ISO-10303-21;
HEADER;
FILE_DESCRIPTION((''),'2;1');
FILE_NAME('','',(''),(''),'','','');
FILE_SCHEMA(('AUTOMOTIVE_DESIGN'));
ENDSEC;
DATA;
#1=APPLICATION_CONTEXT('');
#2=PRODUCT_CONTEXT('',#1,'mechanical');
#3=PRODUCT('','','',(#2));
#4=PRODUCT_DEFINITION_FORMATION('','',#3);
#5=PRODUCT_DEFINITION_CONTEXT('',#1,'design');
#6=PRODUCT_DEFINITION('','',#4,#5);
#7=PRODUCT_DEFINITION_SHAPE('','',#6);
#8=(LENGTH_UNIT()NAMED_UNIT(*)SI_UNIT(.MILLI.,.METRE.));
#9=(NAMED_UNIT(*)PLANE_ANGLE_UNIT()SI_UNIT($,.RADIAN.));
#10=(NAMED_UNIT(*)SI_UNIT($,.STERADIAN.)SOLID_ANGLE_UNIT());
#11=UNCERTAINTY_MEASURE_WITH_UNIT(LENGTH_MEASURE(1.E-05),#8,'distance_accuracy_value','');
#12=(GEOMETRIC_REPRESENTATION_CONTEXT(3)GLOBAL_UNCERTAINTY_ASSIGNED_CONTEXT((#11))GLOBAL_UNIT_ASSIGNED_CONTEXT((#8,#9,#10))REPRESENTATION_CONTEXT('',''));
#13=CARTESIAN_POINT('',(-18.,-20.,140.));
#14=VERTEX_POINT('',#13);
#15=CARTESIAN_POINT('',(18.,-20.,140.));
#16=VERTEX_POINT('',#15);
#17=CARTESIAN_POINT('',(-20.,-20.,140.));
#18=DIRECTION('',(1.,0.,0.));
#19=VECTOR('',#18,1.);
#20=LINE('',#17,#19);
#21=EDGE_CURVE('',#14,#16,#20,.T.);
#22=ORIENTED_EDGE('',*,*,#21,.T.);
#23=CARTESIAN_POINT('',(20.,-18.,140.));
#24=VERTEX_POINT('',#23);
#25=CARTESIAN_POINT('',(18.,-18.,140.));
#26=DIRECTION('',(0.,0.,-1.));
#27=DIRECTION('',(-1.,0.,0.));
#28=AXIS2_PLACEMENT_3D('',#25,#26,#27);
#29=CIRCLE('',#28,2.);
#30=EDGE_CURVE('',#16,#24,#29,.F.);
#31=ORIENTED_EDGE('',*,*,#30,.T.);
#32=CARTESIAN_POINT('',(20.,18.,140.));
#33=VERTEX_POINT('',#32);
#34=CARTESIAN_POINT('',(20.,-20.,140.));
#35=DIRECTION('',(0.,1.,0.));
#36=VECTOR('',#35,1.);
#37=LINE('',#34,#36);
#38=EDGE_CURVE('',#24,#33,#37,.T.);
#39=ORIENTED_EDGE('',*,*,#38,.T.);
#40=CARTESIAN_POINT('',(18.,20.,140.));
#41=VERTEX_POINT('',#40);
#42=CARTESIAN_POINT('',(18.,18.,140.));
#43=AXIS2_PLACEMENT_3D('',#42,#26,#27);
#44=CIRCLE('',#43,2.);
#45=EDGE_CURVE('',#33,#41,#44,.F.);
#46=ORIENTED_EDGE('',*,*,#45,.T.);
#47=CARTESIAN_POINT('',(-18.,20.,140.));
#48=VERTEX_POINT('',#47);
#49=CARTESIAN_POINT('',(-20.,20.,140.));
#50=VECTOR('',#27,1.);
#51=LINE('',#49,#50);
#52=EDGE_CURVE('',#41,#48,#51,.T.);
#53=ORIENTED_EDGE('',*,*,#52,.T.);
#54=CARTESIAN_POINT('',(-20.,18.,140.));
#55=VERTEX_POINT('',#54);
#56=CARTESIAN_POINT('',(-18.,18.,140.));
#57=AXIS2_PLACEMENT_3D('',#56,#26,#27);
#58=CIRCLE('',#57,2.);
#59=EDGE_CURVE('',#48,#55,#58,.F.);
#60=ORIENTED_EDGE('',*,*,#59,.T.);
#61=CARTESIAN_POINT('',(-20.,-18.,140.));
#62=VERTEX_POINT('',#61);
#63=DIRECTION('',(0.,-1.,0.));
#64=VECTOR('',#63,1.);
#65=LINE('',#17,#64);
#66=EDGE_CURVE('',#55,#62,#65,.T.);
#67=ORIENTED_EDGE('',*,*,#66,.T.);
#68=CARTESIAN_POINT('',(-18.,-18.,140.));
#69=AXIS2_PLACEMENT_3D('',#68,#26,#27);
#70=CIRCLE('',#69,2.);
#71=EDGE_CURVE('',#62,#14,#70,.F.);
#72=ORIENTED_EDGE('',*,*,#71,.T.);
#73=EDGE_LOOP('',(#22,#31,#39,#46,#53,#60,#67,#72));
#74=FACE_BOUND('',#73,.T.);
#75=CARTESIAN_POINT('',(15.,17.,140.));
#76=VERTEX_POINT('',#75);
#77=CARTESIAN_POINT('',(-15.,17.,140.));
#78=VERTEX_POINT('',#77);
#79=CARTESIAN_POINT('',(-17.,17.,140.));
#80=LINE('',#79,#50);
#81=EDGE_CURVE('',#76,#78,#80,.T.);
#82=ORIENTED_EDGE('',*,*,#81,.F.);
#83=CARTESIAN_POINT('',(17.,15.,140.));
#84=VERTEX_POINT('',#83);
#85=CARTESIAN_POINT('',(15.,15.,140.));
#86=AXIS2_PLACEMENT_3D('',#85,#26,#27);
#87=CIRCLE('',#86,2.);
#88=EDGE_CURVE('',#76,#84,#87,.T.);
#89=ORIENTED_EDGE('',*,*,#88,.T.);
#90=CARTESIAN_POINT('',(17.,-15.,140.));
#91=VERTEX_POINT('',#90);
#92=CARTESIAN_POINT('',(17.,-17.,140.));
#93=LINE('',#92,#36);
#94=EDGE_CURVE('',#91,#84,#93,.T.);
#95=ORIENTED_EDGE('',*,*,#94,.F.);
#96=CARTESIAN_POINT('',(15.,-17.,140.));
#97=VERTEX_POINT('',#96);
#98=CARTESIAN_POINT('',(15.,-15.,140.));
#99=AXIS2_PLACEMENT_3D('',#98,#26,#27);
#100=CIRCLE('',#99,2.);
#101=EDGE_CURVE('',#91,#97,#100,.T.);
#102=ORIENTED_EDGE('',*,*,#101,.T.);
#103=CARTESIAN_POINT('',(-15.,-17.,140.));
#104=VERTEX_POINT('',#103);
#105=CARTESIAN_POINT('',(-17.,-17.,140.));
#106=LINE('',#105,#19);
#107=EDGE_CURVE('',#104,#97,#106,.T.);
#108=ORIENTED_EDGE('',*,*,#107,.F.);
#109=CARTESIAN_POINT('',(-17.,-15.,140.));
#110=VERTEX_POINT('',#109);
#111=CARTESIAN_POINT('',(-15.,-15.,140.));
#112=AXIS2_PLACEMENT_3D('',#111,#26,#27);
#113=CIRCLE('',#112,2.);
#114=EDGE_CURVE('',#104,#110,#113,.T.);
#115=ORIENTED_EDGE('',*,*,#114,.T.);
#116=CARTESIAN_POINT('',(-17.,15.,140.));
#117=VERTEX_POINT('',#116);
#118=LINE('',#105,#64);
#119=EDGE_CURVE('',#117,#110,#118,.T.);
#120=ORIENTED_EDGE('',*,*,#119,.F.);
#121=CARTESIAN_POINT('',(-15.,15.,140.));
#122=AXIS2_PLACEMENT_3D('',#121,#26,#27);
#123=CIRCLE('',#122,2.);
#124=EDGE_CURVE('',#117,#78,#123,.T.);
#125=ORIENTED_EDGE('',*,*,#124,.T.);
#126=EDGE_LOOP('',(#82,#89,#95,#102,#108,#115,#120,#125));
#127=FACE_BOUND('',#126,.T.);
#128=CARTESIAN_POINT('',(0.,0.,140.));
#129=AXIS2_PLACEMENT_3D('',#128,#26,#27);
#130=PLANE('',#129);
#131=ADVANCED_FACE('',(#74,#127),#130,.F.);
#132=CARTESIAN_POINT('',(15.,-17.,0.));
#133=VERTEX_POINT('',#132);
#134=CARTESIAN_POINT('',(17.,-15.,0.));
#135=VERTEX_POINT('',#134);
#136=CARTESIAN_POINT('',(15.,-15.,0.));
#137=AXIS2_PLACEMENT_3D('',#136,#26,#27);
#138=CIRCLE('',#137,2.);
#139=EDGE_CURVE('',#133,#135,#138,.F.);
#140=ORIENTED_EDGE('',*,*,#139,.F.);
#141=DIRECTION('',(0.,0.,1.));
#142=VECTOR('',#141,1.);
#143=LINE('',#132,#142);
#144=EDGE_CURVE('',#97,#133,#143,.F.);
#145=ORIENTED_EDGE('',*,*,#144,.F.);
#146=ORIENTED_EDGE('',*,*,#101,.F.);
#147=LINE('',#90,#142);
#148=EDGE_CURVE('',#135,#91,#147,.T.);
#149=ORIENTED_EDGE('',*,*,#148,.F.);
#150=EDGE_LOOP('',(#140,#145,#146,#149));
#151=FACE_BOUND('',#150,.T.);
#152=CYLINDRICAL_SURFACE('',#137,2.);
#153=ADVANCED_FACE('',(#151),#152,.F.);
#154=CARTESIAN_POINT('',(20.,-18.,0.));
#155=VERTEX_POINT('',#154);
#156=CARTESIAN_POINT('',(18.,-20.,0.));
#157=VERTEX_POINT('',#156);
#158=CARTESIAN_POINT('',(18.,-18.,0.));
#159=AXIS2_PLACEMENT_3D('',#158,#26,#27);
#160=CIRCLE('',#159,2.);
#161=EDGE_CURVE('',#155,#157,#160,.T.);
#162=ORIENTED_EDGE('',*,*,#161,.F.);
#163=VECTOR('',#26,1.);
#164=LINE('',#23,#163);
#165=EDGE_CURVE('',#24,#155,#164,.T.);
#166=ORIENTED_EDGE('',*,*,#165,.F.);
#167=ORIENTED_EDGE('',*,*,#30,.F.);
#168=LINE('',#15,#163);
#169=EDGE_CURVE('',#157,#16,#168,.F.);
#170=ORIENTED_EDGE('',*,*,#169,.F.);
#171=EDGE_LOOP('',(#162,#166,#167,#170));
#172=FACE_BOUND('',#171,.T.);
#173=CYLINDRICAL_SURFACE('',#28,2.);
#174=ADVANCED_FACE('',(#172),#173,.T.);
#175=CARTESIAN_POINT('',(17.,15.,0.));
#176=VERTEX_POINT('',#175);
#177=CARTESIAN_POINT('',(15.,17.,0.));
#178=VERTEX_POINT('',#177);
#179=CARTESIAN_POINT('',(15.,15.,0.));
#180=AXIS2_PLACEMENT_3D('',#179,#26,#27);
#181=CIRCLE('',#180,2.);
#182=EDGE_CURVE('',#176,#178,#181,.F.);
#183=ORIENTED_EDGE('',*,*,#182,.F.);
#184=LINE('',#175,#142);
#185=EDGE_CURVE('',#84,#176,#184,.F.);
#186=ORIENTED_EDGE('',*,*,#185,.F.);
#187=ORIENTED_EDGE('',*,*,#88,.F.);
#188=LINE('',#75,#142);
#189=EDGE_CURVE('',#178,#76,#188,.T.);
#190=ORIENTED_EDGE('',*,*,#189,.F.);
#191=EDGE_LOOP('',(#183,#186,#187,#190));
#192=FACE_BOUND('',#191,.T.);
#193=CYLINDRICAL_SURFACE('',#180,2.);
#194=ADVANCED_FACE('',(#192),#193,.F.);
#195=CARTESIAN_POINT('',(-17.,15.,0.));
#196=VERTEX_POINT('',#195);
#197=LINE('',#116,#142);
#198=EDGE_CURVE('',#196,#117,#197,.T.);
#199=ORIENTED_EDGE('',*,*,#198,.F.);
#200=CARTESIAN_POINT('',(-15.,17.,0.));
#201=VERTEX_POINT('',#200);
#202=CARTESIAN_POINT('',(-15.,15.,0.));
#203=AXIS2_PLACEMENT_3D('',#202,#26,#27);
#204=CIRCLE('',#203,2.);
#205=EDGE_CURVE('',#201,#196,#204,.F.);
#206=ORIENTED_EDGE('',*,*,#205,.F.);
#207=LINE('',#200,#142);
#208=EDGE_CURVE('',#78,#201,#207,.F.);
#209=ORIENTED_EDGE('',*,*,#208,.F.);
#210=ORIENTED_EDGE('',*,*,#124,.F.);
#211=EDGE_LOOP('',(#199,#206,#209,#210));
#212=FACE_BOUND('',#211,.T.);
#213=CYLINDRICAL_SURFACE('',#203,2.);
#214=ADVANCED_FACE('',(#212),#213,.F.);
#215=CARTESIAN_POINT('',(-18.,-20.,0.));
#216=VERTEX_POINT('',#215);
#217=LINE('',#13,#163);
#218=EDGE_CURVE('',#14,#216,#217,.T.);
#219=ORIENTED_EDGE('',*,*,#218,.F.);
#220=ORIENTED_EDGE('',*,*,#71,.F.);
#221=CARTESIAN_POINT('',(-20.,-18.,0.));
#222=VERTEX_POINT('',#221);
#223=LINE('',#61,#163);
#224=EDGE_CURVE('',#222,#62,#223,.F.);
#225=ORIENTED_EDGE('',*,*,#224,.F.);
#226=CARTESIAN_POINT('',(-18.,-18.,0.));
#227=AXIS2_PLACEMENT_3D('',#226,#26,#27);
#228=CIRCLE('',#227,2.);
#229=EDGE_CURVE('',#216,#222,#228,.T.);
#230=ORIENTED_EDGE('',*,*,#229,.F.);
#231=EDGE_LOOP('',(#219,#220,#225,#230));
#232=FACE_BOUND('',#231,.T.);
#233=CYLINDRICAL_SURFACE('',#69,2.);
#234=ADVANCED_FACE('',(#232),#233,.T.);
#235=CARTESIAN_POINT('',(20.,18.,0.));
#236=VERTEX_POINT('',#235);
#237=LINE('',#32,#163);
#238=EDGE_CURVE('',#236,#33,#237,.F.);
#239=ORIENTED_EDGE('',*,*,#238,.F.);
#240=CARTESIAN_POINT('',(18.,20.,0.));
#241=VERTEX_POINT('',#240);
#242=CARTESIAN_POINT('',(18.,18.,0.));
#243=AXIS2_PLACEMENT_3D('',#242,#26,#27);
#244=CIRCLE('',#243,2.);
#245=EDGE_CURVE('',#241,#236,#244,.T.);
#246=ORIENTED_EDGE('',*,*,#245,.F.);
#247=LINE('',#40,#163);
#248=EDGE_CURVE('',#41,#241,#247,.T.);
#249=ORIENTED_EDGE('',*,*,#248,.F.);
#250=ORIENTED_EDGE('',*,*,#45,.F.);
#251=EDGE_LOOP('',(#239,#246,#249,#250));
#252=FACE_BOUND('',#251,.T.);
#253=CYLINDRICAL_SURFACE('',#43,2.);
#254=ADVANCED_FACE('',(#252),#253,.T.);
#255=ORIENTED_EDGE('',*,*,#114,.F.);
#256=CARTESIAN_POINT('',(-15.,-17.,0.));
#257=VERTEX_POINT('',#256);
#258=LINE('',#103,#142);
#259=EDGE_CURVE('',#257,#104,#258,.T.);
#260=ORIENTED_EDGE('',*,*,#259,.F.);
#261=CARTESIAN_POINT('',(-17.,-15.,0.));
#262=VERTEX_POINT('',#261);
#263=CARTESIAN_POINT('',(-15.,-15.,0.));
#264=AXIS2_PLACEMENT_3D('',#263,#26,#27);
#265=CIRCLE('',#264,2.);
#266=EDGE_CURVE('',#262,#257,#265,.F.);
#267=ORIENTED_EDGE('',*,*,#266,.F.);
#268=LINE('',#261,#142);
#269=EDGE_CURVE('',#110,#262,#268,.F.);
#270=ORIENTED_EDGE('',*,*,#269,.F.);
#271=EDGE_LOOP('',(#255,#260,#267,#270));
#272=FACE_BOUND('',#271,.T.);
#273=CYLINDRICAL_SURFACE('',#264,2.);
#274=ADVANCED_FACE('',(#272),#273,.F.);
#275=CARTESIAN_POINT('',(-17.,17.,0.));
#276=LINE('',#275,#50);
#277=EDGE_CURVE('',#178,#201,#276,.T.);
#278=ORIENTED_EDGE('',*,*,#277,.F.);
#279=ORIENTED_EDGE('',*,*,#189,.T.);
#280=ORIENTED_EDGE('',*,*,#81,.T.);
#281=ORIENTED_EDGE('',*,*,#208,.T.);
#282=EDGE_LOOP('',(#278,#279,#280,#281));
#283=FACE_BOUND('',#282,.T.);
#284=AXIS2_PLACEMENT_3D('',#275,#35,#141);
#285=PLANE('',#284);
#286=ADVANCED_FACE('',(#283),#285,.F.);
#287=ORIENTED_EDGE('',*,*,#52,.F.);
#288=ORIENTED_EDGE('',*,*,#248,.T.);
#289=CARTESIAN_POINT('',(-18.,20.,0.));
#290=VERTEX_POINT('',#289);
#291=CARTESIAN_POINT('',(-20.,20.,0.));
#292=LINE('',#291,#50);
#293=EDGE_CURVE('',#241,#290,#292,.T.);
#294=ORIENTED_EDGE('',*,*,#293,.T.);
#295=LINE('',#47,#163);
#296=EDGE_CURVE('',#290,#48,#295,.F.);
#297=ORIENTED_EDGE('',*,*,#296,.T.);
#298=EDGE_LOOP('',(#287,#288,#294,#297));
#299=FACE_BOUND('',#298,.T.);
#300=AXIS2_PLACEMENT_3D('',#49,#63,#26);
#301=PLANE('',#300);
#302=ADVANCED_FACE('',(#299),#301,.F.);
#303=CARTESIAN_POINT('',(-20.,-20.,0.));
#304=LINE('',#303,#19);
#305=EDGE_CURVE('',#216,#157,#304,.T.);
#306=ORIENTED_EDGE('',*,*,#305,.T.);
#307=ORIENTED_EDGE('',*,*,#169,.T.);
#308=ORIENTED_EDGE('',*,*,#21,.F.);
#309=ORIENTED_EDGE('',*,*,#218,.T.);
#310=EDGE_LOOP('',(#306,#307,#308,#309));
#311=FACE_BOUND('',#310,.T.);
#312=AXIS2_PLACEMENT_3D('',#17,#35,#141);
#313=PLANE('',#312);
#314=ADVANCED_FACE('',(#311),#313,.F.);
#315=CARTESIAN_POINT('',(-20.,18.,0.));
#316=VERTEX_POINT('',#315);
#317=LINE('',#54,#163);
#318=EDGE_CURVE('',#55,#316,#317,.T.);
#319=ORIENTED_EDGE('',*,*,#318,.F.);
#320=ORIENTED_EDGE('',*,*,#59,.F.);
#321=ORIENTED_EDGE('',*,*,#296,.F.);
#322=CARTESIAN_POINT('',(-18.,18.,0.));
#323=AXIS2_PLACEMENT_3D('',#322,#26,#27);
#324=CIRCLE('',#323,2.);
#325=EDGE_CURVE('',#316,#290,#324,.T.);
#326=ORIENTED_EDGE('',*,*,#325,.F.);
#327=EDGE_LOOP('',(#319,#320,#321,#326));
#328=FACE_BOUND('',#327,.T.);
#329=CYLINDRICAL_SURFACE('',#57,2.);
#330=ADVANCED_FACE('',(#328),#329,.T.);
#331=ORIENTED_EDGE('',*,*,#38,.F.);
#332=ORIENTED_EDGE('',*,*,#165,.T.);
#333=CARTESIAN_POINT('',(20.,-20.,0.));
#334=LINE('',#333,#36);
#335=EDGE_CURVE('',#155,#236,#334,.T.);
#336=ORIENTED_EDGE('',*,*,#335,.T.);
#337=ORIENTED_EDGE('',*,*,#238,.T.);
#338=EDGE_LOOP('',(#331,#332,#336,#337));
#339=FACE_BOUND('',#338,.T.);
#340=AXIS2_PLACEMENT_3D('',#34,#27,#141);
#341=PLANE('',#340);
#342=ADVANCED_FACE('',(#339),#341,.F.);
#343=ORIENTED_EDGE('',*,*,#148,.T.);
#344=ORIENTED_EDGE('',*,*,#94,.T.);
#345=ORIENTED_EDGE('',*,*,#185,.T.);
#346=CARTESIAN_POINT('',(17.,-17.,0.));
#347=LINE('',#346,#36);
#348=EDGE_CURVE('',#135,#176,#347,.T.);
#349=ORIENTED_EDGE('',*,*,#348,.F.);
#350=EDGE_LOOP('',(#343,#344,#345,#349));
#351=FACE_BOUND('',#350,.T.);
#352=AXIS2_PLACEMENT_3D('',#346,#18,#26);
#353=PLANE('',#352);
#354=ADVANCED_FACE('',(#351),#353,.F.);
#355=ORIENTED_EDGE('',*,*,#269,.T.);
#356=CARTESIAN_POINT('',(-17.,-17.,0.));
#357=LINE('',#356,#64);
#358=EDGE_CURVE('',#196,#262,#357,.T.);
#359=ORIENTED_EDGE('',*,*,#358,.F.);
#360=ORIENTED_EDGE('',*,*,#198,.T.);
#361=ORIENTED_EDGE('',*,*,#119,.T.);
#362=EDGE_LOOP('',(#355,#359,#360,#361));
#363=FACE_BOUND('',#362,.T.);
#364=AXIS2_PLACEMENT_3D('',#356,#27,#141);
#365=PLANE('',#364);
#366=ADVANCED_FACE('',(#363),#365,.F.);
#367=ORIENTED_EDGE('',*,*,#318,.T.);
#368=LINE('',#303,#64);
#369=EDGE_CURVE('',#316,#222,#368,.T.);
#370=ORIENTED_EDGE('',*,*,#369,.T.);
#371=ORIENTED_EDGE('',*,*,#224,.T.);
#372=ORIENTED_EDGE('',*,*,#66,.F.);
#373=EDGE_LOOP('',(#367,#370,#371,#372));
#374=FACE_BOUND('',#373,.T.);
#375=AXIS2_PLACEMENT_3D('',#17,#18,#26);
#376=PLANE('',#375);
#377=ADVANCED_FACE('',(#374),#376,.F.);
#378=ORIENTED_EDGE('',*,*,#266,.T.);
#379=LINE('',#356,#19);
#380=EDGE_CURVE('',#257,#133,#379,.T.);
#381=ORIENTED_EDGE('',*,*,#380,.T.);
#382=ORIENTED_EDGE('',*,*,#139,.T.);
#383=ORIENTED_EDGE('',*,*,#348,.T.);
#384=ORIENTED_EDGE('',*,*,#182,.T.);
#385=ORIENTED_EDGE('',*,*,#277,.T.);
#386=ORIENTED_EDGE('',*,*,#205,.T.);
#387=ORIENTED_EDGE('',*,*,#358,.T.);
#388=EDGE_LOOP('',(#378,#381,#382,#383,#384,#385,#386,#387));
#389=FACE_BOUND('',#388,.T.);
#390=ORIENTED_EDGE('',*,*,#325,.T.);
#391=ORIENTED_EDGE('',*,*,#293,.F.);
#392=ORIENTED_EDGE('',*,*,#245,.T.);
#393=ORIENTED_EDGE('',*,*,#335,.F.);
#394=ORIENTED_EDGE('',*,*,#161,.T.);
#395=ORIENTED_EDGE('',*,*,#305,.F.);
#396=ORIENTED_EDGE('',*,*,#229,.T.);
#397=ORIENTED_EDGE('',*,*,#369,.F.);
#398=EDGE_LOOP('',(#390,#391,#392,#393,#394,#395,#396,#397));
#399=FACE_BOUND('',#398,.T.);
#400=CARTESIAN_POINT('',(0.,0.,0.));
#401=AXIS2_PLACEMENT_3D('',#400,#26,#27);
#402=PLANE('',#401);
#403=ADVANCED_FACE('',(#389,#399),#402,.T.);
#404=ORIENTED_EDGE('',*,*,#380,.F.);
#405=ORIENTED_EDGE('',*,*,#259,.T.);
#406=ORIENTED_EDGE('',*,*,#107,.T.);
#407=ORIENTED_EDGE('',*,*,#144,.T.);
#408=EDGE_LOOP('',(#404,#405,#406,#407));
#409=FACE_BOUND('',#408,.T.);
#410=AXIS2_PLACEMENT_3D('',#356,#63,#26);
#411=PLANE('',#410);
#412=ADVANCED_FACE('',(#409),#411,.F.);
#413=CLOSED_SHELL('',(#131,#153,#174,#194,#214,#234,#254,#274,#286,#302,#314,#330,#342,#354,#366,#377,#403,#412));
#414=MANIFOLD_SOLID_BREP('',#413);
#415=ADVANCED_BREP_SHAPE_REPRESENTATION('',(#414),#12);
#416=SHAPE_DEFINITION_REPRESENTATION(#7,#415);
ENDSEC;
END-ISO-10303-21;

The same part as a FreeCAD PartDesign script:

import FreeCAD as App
import Part
import Sketcher
from FreeCAD import Vector


def edges_at(feature, points):
    """Names of the edges that pass closest to the given points."""
    edges = feature.Shape.Edges
    near = lambda p: min(range(len(edges)), key=lambda i: edges[i].distToShape(Part.Vertex(*p))[0])
    return sorted({f"Edge{near(p) + 1}" for p in points})

doc = App.newDocument("Part")
params = doc.addObject("Spreadsheet::Sheet", "Params")
for row, (alias, value) in enumerate([
    ("sketch1_width", "40 mm"),
    ("pad1_length", "140 mm"),
    ("sketch2_width", "34 mm"),
    ("fillet_radius", "2 mm"),
    ("fillet2_radius", "2 mm"),
], start=1):
    params.set(f"A{row}", alias)
    params.set(f"B{row}", "=" + value)
    params.setAlias(f"B{row}", alias)

body = doc.addObject("PartDesign::Body", "Body")

# Sketch on XY plane
sketch1 = body.newObject("Sketcher::SketchObject", "Sketch")
sketch1.AttachmentSupport = (doc.getObject("XY_Plane"), [""])
sketch1.MapMode = "FlatFace"
sketch1.addGeometry(Part.LineSegment(Vector(-20, 20, 0), Vector(-20, -20, 0)), False)
sketch1.addGeometry(Part.LineSegment(Vector(-20, -20, 0), Vector(20, -20, 0)), False)
sketch1.addGeometry(Part.LineSegment(Vector(20, -20, 0), Vector(20, 20, 0)), False)
sketch1.addGeometry(Part.LineSegment(Vector(20, 20, 0), Vector(-20, 20, 0)), False)
sketch1.addConstraint(Sketcher.Constraint("Coincident", 0, 2, 1, 1))
sketch1.addConstraint(Sketcher.Constraint("Coincident", 1, 2, 2, 1))
sketch1.addConstraint(Sketcher.Constraint("Coincident", 2, 2, 3, 1))
sketch1.addConstraint(Sketcher.Constraint("Coincident", 3, 2, 0, 1))
sketch1.addConstraint(Sketcher.Constraint("Vertical", 0))
sketch1.addConstraint(Sketcher.Constraint("Horizontal", 1))
sketch1.addConstraint(Sketcher.Constraint("Vertical", 2))
sketch1.addConstraint(Sketcher.Constraint("Horizontal", 3))
sketch1.addConstraint(Sketcher.Constraint("Symmetric", 0, 2, 2, 2, -1, 1))
sketch1.addConstraint(Sketcher.Constraint("Equal", 3, 0))
sketch1.addConstraint(Sketcher.Constraint("DistanceX", 1, 1, 1, 2, 40.0))
sketch1.setExpression("Constraints[10]", "Params.sketch1_width")
pad1 = body.newObject("PartDesign::Pad", "Pad")
pad1.Profile = sketch1
pad1.setExpression("Length", "Params.pad1_length")

# Sketch on XY plane
sketch2 = body.newObject("Sketcher::SketchObject", "Sketch001")
sketch2.AttachmentSupport = (doc.getObject("XY_Plane"), [""])
sketch2.MapMode = "FlatFace"
sketch2.AttachmentOffset = App.Placement(Vector(0, 0, 140), App.Rotation())
sketch2.addGeometry(Part.LineSegment(Vector(-17, 17, 0), Vector(-17, -17, 0)), False)
sketch2.addGeometry(Part.LineSegment(Vector(-17, -17, 0), Vector(17, -17, 0)), False)
sketch2.addGeometry(Part.LineSegment(Vector(17, -17, 0), Vector(17, 17, 0)), False)
sketch2.addGeometry(Part.LineSegment(Vector(17, 17, 0), Vector(-17, 17, 0)), False)
sketch2.addConstraint(Sketcher.Constraint("Coincident", 0, 2, 1, 1))
sketch2.addConstraint(Sketcher.Constraint("Coincident", 1, 2, 2, 1))
sketch2.addConstraint(Sketcher.Constraint("Coincident", 2, 2, 3, 1))
sketch2.addConstraint(Sketcher.Constraint("Coincident", 3, 2, 0, 1))
sketch2.addConstraint(Sketcher.Constraint("Vertical", 0))
sketch2.addConstraint(Sketcher.Constraint("Horizontal", 1))
sketch2.addConstraint(Sketcher.Constraint("Vertical", 2))
sketch2.addConstraint(Sketcher.Constraint("Horizontal", 3))
sketch2.addConstraint(Sketcher.Constraint("Symmetric", 0, 2, 2, 2, -1, 1))
sketch2.addConstraint(Sketcher.Constraint("Equal", 3, 0))
sketch2.addConstraint(Sketcher.Constraint("DistanceX", 1, 1, 1, 2, 34.0))
sketch2.setExpression("Constraints[10]", "Params.sketch2_width")
pocket1 = body.newObject("PartDesign::Pocket", "Pocket")
pocket1.Profile = sketch2
pocket1.Type = "ThroughAll"
doc.recompute()

fillet = body.newObject("PartDesign::Fillet", "Fillet")
fillet.Base = (pocket1, edges_at(pocket1, [
    (20, -20, 70),
    (-20, -20, 70),
    (-20, 20, 70),
    (20, 20, 70),
]))
fillet.setExpression("Radius", "Params.fillet_radius")
doc.recompute()

fillet2 = body.newObject("PartDesign::Fillet", "Fillet001")
fillet2.Base = (fillet, edges_at(fillet, [
    (17, 17, 70),
    (17, -17, 70),
    (-17, -17, 70),
    (-17, 17, 70),
]))
fillet2.setExpression("Radius", "Params.fillet2_radius")

doc.recompute()
